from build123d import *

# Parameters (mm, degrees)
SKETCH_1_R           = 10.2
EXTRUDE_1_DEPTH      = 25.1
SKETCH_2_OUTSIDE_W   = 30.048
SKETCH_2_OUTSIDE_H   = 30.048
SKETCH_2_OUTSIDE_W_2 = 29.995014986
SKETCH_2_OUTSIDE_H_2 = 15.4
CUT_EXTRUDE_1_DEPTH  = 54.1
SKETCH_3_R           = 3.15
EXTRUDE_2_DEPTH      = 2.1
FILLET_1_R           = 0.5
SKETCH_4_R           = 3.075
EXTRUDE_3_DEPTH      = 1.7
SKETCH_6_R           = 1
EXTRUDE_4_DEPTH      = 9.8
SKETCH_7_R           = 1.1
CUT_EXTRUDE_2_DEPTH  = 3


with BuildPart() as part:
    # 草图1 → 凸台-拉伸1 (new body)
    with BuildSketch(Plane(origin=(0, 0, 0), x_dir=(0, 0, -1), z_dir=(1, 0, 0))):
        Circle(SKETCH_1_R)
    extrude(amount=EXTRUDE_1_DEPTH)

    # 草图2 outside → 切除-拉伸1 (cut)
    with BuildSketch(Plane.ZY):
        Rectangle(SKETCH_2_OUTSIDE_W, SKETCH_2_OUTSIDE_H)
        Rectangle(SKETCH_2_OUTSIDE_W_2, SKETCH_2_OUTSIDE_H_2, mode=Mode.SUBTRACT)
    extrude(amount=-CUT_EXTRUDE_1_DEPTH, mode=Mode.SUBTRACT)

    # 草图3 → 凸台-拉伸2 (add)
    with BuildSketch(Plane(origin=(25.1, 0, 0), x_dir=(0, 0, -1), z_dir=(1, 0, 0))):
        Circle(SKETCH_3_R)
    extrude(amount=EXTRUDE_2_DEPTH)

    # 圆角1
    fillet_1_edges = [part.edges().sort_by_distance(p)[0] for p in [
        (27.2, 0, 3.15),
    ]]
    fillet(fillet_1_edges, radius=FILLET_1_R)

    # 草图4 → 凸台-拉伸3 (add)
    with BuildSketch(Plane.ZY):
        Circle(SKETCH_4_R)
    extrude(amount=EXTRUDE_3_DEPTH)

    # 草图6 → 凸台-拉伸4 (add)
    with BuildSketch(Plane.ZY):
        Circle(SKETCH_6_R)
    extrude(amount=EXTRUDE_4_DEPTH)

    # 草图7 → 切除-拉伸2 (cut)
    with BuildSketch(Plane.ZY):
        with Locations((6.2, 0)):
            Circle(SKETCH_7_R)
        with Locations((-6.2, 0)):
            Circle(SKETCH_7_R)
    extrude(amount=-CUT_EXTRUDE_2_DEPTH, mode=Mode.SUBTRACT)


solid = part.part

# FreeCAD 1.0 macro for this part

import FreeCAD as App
import Part
import Sketcher

V = App.Vector


def edges_at(feature, points):
    """Names of the edges that pass closest to the given points."""
    edges = feature.Shape.Edges
    near = lambda p: min(range(len(edges)), key=lambda i: edges[i].distToShape(Part.Vertex(*p))[0])
    return sorted({f"Edge{near(p) + 1}" for p in points})


def add_polygon(sketch, points):
    """Adds a closed chain of lines whose ends are joined by coincident constraints."""
    first, n = sketch.GeometryCount, len(points)
    for a, b in zip(points, points[1:] + points[:1]):
        sketch.addGeometry(Part.LineSegment(App.Vector(*a, 0), App.Vector(*b, 0)), False)
    for i in range(n):
        sketch.addConstraint(Sketcher.Constraint("Coincident", first + i, 2, first + (i + 1) % n, 1))

doc = App.newDocument("Part")
body = doc.addObject("PartDesign::Body", "Body")

sketch1 = body.newObject("Sketcher::SketchObject", "Sketch")
sketch1.AttachmentSupport = (doc.getObject("YZ_Plane"), [""])
sketch1.MapMode = "FlatFace"
sketch1.addGeometry(Part.Circle(V(0, 0, 0), V(0, 0, 1), 10), False)
sketch1.addConstraint([
    Sketcher.Constraint("Coincident", 0, 3, -1, 1),
    Sketcher.Constraint("Diameter", 0, 20.4),
])
pad1 = body.newObject("PartDesign::Pad", "Pad")
pad1.Profile = sketch1
pad1.Length = 25.1

sketch2 = body.newObject("Sketcher::SketchObject", "Sketch001")
sketch2.AttachmentSupport = (doc.getObject("YZ_Plane"), [""])
sketch2.MapMode = "FlatFace"
add_polygon(sketch2, [(15, -15), (-15, -15), (-15, 15), (15, 15)])
add_polygon(sketch2, [(-8, 15), (-8, -15), (8, -15), (8, 15)])
sketch2.addConstraint([
    Sketcher.Constraint("Horizontal", 0),
    Sketcher.Constraint("Vertical", 1),
    Sketcher.Constraint("Horizontal", 2),
    Sketcher.Constraint("Vertical", 3),
    Sketcher.Constraint("Vertical", 4),
    Sketcher.Constraint("Horizontal", 5),
    Sketcher.Constraint("Vertical", 6),
    Sketcher.Constraint("Horizontal", 7),
    Sketcher.Constraint("Symmetric", 0, 2, 2, 2, -1, 1),
    Sketcher.Constraint("Symmetric", 4, 2, 6, 2, -1, 1),
    Sketcher.Constraint("Equal", 2, 1),
    Sketcher.Constraint("DistanceX", 5, 1, 5, 2, 15.4),
    Sketcher.Constraint("DistanceX", 0, 2, 0, 1, 30.048),
    Sketcher.Constraint("DistanceY", 4, 2, 4, 1, 29.995015),
])
pocket1 = body.newObject("PartDesign::Pocket", "Pocket")
pocket1.Profile = sketch2
pocket1.Length = 54.1
pocket1.Reversed = True

sketch3 = body.newObject("Sketcher::SketchObject", "Sketch002")
sketch3.AttachmentSupport = (doc.getObject("YZ_Plane"), [""])
sketch3.MapMode = "FlatFace"
sketch3.AttachmentOffset = App.Placement(V(0, 0, 25.1), App.Rotation())
sketch3.addGeometry(Part.Circle(V(0, 0, 0), V(0, 0, 1), 3.1), False)
sketch3.addConstraint([
    Sketcher.Constraint("Coincident", 0, 3, -1, 1),
    Sketcher.Constraint("Diameter", 0, 6.3),
])
pad2 = body.newObject("PartDesign::Pad", "Pad001")
pad2.Profile = sketch3
pad2.Length = 2.1
doc.recompute()

fillet = body.newObject("PartDesign::Fillet", "Fillet")
fillet.Base = (pad2, edges_at(pad2, [(27.2, 0, 3.15)]))
fillet.Radius = 0.5

sketch4 = body.newObject("Sketcher::SketchObject", "Sketch003")
sketch4.AttachmentSupport = (doc.getObject("YZ_Plane"), [""])
sketch4.MapMode = "FlatFace"
sketch4.addGeometry(Part.Circle(V(0, 0, 0), V(0, 0, 1), 3.1), False)
sketch4.addConstraint([
    Sketcher.Constraint("Coincident", 0, 3, -1, 1),
    Sketcher.Constraint("Diameter", 0, 6.15),
])
pad3 = body.newObject("PartDesign::Pad", "Pad002")
pad3.Profile = sketch4
pad3.Length = 1.7
pad3.Reversed = True

sketch5 = body.newObject("Sketcher::SketchObject", "Sketch004")
sketch5.AttachmentSupport = (doc.getObject("YZ_Plane"), [""])
sketch5.MapMode = "FlatFace"
sketch5.addGeometry(Part.Circle(V(0, 0, 0), V(0, 0, 1), 1), False)
sketch5.addConstraint([
    Sketcher.Constraint("Coincident", 0, 3, -1, 1),
    Sketcher.Constraint("Diameter", 0, 2.0),
])
pad4 = body.newObject("PartDesign::Pad", "Pad003")
pad4.Profile = sketch5
pad4.Length = 9.8
pad4.Reversed = True

sketch6 = body.newObject("Sketcher::SketchObject", "Sketch005")
sketch6.AttachmentSupport = (doc.getObject("YZ_Plane"), [""])
sketch6.MapMode = "FlatFace"
sketch6.addGeometry([
    Part.Circle(V(0, 6.2, 0), V(0, 0, 1), 1.1),
    Part.Circle(V(0, -6.2, 0), V(0, 0, 1), 1.1),
], False)
sketch6.addConstraint([
    Sketcher.Constraint("Equal", 0, 1),
    Sketcher.Constraint("Symmetric", 0, 3, 1, 3, -1, 1),
    Sketcher.Constraint("PointOnObject", 0, 3, -2),
    Sketcher.Constraint("Diameter", 0, 2.2),
    Sketcher.Constraint("DistanceY", -1, 1, 0, 3, 6.2),
])
pocket2 = body.newObject("PartDesign::Pocket", "Pocket001")
pocket2.Profile = sketch6
pocket2.Length = 3
pocket2.Reversed = True

doc.recompute()
